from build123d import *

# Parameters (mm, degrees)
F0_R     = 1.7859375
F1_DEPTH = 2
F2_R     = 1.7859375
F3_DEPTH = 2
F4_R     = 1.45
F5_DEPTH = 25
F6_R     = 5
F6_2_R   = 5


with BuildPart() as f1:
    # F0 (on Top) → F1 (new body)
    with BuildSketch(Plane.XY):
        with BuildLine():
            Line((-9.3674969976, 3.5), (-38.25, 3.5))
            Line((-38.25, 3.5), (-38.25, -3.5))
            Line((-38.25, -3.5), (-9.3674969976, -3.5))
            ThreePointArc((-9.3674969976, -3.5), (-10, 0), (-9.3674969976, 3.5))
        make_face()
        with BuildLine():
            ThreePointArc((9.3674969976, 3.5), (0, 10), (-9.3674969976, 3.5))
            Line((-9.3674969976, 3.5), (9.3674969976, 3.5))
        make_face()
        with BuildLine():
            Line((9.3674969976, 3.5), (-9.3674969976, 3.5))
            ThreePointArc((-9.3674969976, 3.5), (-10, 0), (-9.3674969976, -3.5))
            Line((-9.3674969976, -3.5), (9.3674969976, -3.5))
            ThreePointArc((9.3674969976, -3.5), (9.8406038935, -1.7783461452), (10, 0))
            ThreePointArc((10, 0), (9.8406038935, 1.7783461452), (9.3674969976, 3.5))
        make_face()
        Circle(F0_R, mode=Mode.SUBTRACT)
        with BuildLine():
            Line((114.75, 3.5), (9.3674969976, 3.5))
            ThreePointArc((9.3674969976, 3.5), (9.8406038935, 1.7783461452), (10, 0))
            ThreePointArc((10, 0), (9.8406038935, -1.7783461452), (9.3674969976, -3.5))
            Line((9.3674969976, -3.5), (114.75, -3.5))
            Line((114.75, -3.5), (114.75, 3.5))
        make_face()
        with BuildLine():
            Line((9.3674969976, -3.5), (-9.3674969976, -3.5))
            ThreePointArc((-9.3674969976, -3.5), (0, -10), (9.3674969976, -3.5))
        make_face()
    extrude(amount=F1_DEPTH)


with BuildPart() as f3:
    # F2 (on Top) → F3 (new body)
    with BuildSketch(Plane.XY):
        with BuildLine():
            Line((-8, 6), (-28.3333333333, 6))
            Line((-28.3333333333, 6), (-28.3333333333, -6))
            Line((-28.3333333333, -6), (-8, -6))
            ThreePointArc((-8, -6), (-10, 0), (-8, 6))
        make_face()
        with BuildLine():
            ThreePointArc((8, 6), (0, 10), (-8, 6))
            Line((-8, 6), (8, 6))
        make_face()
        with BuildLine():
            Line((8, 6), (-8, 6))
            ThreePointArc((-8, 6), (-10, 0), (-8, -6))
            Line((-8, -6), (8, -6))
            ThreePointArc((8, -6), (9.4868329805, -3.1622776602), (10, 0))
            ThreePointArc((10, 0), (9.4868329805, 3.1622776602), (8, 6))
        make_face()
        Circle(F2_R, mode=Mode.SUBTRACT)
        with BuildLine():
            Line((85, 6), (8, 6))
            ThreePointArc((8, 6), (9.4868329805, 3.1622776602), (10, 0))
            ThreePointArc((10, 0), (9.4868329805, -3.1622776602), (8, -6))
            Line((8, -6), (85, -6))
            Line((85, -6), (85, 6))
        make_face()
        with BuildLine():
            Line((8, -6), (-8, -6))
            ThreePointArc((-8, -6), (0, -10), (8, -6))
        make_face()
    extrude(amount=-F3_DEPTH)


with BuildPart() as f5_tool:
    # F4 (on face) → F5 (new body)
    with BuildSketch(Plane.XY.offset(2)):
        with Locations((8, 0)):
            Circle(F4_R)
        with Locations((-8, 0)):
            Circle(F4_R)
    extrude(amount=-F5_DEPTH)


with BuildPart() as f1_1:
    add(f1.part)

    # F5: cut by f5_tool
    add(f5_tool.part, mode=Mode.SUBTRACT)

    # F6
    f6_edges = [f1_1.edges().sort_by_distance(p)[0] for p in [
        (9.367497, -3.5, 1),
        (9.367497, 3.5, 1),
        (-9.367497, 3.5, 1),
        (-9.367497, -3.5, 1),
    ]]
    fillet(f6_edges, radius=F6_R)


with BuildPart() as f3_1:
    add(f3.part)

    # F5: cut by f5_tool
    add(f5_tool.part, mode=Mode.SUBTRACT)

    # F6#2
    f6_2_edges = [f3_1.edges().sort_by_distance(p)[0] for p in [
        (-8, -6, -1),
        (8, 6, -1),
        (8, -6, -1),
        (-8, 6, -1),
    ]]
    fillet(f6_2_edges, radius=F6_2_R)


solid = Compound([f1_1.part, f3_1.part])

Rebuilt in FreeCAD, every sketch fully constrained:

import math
import FreeCAD as App
import Part
import Sketcher
from FreeCAD import Vector
Q = App.Units.Quantity


def edges_at(feature, points):
    """Names of the edges that pass closest to the given points."""
    edges = feature.Shape.Edges
    near = lambda p: min(range(len(edges)), key=lambda i: edges[i].distToShape(Part.Vertex(*p))[0])
    return sorted({f"Edge{near(p) + 1}" for p in points})

doc = App.newDocument("Part")
body = doc.addObject("PartDesign::Body", "Body")

# Sketch on XY plane
sketch1 = body.newObject("Sketcher::SketchObject", "Sketch")
sketch1.AttachmentSupport = (doc.getObject("XY_Plane"), [""])
sketch1.MapMode = "FlatFace"
sketch1.addGeometry(Part.LineSegment(Vector(-9.4, 3.5, 0), Vector(-38.2, 3.5, 0)), False)
sketch1.addGeometry(Part.LineSegment(Vector(-38.2, 3.5, 0), Vector(-38.2, -3.5, 0)), False)
sketch1.addGeometry(Part.LineSegment(Vector(-38.2, -3.5, 0), Vector(-9.4, -3.5, 0)), False)
sketch1.addGeometry(Part.ArcOfCircle(Part.Circle(Vector(0, 0, 0), Vector(0, 0, 1), 10), math.radians(-160), math.radians(-20)), False)
sketch1.addGeometry(Part.LineSegment(Vector(9.4, -3.5, 0), Vector(114.8, -3.5, 0)), False)
sketch1.addGeometry(Part.LineSegment(Vector(114.8, -3.5, 0), Vector(114.8, 3.5, 0)), False)
sketch1.addGeometry(Part.LineSegment(Vector(114.8, 3.5, 0), Vector(9.4, 3.5, 0)), False)
sketch1.addGeometry(Part.ArcOfCircle(Part.Circle(Vector(0, 0, 0), Vector(0, 0, 1), 10), math.radians(20), math.radians(160)), False)
sketch1.addGeometry(Part.Circle(Vector(0, 0, 0), Vector(0, 0, 1), 1.8), False)
sketch1.addConstraint(Sketcher.Constraint("Coincident", 0, 2, 1, 1))
sketch1.addConstraint(Sketcher.Constraint("Coincident", 1, 2, 2, 1))
sketch1.addConstraint(Sketcher.Constraint("Coincident", 2, 2, 3, 1))
sketch1.addConstraint(Sketcher.Constraint("Coincident", 3, 2, 4, 1))
sketch1.addConstraint(Sketcher.Constraint("Coincident", 4, 2, 5, 1))
sketch1.addConstraint(Sketcher.Constraint("Coincident", 5, 2, 6, 1))
sketch1.addConstraint(Sketcher.Constraint("Coincident", 6, 2, 7, 1))
sketch1.addConstraint(Sketcher.Constraint("Coincident", 7, 2, 0, 1))
sketch1.addConstraint(Sketcher.Constraint("Horizontal", 0))
sketch1.addConstraint(Sketcher.Constraint("Vertical", 1))
sketch1.addConstraint(Sketcher.Constraint("Horizontal", 2))
sketch1.addConstraint(Sketcher.Constraint("Horizontal", 4))
sketch1.addConstraint(Sketcher.Constraint("Vertical", 5))
sketch1.addConstraint(Sketcher.Constraint("Horizontal", 6))
sketch1.addConstraint(Sketcher.Constraint("Coincident", 3, 3, -1, 1))
sketch1.addConstraint(Sketcher.Constraint("Coincident", 7, 3, -1, 1))
sketch1.addConstraint(Sketcher.Constraint("Coincident", 8, 3, -1, 1))
sketch1.addConstraint(Sketcher.Constraint("Equal", 3, 7))
sketch1.addConstraint(Sketcher.Constraint("Horizontal", 2, 2, 3, 2))
sketch1.addConstraint(Sketcher.Constraint("Horizontal", 0, 2, 5, 2))
sketch1.addConstraint(Sketcher.Constraint("Vertical", 3, 2, 6, 2))
sketch1.addConstraint(Sketcher.Constraint("Radius", 3, Q("10 mm")))
sketch1.addConstraint(Sketcher.Constraint("DistanceY", 1, 2, 1, 1, Q("7 mm")))
sketch1.addConstraint(Sketcher.Constraint("DistanceX", 0, 2, -1, 1, Q("38.25 mm")))
sketch1.addConstraint(Sketcher.Constraint("DistanceX", -1, 1, 4, 2, Q("114.75 mm")))
sketch1.addConstraint(Sketcher.Constraint("Diameter", 8, Q("3.571875 mm")))
pad1 = body.newObject("PartDesign::Pad", "Pad")
pad1.Profile = sketch1
pad1.Length = 2
body2 = doc.addObject("PartDesign::Body", "Body001")

# Sketch on XY plane
sketch2 = body2.newObject("Sketcher::SketchObject", "Sketch001")
sketch2.AttachmentSupport = (doc.getObject("XY_Plane001"), [""])
sketch2.MapMode = "FlatFace"
sketch2.addGeometry(Part.LineSegment(Vector(-8, 6, 0), Vector(-28.3, 6, 0)), False)
sketch2.addGeometry(Part.LineSegment(Vector(-28.3, 6, 0), Vector(-28.3, -6, 0)), False)
sketch2.addGeometry(Part.LineSegment(Vector(-28.3, -6, 0), Vector(-8, -6, 0)), False)
sketch2.addGeometry(Part.ArcOfCircle(Part.Circle(Vector(0, 0, 0), Vector(0, 0, 1), 10), math.radians(-143), math.radians(-37)), False)
sketch2.addGeometry(Part.LineSegment(Vector(8, -6, 0), Vector(85, -6, 0)), False)
sketch2.addGeometry(Part.LineSegment(Vector(85, -6, 0), Vector(85, 6, 0)), False)
sketch2.addGeometry(Part.LineSegment(Vector(85, 6, 0), Vector(8, 6, 0)), False)
sketch2.addGeometry(Part.ArcOfCircle(Part.Circle(Vector(0, 0, 0), Vector(0, 0, 1), 10), math.radians(37), math.radians(143)), False)
sketch2.addGeometry(Part.Circle(Vector(0, 0, 0), Vector(0, 0, 1), 1.8), False)
sketch2.addConstraint(Sketcher.Constraint("Coincident", 0, 2, 1, 1))
sketch2.addConstraint(Sketcher.Constraint("Coincident", 1, 2, 2, 1))
sketch2.addConstraint(Sketcher.Constraint("Coincident", 2, 2, 3, 1))
sketch2.addConstraint(Sketcher.Constraint("Coincident", 3, 2, 4, 1))
sketch2.addConstraint(Sketcher.Constraint("Coincident", 4, 2, 5, 1))
sketch2.addConstraint(Sketcher.Constraint("Coincident", 5, 2, 6, 1))
sketch2.addConstraint(Sketcher.Constraint("Coincident", 6, 2, 7, 1))
sketch2.addConstraint(Sketcher.Constraint("Coincident", 7, 2, 0, 1))
sketch2.addConstraint(Sketcher.Constraint("Horizontal", 0))
sketch2.addConstraint(Sketcher.Constraint("Vertical", 1))
sketch2.addConstraint(Sketcher.Constraint("Horizontal", 2))
sketch2.addConstraint(Sketcher.Constraint("Horizontal", 4))
sketch2.addConstraint(Sketcher.Constraint("Vertical", 5))
sketch2.addConstraint(Sketcher.Constraint("Horizontal", 6))
sketch2.addConstraint(Sketcher.Constraint("Coincident", 3, 3, -1, 1))
sketch2.addConstraint(Sketcher.Constraint("Coincident", 7, 3, -1, 1))
sketch2.addConstraint(Sketcher.Constraint("Coincident", 8, 3, -1, 1))
sketch2.addConstraint(Sketcher.Constraint("Equal", 3, 7))
sketch2.addConstraint(Sketcher.Constraint("Horizontal", 2, 2, 3, 2))
sketch2.addConstraint(Sketcher.Constraint("Horizontal", 0, 2, 5, 2))
sketch2.addConstraint(Sketcher.Constraint("Vertical", 3, 2, 6, 2))
sketch2.addConstraint(Sketcher.Constraint("Radius", 3, Q("10 mm")))
sketch2.addConstraint(Sketcher.Constraint("DistanceX", 4, 1, 4, 2, Q("77 mm")))
sketch2.addConstraint(Sketcher.Constraint("DistanceY", 1, 2, 1, 1, Q("12 mm")))
sketch2.addConstraint(Sketcher.Constraint("Diameter", 8, Q("3.571875 mm")))
sketch2.addConstraint(Sketcher.Constraint("DistanceX", 0, 2, 0, 1, Q("20.333333 mm")))
pad2 = body2.newObject("PartDesign::Pad", "Pad001")
pad2.Profile = sketch2
pad2.Length = 2
pad2.Reversed = True
body3 = doc.addObject("PartDesign::Body", "Body002")
body3.AllowCompound = True

# Sketch on XY plane
sketch3 = body3.newObject("Sketcher::SketchObject", "Sketch002")
sketch3.AttachmentSupport = (doc.getObject("XY_Plane002"), [""])
sketch3.MapMode = "FlatFace"
sketch3.AttachmentOffset = App.Placement(Vector(0, 0, 2), App.Rotation())
sketch3.addGeometry(Part.Circle(Vector(8, 0, 0), Vector(0, 0, 1), 1.4), False)
sketch3.addGeometry(Part.Circle(Vector(-8, 0, 0), Vector(0, 0, 1), 1.4), False)
sketch3.addConstraint(Sketcher.Constraint("Equal", 0, 1))
sketch3.addConstraint(Sketcher.Constraint("Symmetric", 0, 3, 1, 3, -1, 1))
sketch3.addConstraint(Sketcher.Constraint("PointOnObject", 0, 3, -1))
sketch3.addConstraint(Sketcher.Constraint("Diameter", 0, Q("2.9 mm")))
sketch3.addConstraint(Sketcher.Constraint("DistanceX", -1, 1, 0, 3, Q("8 mm")))
pad3 = body3.newObject("PartDesign::Pad", "Pad002")
pad3.Profile = sketch3
pad3.Length = 25
pad3.Reversed = True
doc.recompute()

body4 = doc.addObject("PartDesign::Body", "Body003")
body4.BaseFeature = body3
boolean = body.newObject("PartDesign::Boolean", "Boolean")
boolean.Type = "Cut"
boolean.addObjects([body4])
doc.recompute()

fillet = body.newObject("PartDesign::Fillet", "Fillet")
fillet.Base = (boolean, edges_at(boolean, [
    (9.367, -3.5, 1),
    (9.367, 3.5, 1),
    (-9.367, 3.5, 1),
    (-9.367, -3.5, 1),
]))
fillet.Radius = 5
doc.recompute()

boolean2 = body2.newObject("PartDesign::Boolean", "Boolean001")
boolean2.Type = "Cut"
boolean2.addObjects([body3])
doc.recompute()

fillet2 = body2.newObject("PartDesign::Fillet", "Fillet001")
fillet2.Base = (boolean2, edges_at(boolean2, [
    (-8, -6, -1),
    (8, 6, -1),
    (8, -6, -1),
    (-8, 6, -1),
]))
fillet2.Radius = 5

doc.recompute()
